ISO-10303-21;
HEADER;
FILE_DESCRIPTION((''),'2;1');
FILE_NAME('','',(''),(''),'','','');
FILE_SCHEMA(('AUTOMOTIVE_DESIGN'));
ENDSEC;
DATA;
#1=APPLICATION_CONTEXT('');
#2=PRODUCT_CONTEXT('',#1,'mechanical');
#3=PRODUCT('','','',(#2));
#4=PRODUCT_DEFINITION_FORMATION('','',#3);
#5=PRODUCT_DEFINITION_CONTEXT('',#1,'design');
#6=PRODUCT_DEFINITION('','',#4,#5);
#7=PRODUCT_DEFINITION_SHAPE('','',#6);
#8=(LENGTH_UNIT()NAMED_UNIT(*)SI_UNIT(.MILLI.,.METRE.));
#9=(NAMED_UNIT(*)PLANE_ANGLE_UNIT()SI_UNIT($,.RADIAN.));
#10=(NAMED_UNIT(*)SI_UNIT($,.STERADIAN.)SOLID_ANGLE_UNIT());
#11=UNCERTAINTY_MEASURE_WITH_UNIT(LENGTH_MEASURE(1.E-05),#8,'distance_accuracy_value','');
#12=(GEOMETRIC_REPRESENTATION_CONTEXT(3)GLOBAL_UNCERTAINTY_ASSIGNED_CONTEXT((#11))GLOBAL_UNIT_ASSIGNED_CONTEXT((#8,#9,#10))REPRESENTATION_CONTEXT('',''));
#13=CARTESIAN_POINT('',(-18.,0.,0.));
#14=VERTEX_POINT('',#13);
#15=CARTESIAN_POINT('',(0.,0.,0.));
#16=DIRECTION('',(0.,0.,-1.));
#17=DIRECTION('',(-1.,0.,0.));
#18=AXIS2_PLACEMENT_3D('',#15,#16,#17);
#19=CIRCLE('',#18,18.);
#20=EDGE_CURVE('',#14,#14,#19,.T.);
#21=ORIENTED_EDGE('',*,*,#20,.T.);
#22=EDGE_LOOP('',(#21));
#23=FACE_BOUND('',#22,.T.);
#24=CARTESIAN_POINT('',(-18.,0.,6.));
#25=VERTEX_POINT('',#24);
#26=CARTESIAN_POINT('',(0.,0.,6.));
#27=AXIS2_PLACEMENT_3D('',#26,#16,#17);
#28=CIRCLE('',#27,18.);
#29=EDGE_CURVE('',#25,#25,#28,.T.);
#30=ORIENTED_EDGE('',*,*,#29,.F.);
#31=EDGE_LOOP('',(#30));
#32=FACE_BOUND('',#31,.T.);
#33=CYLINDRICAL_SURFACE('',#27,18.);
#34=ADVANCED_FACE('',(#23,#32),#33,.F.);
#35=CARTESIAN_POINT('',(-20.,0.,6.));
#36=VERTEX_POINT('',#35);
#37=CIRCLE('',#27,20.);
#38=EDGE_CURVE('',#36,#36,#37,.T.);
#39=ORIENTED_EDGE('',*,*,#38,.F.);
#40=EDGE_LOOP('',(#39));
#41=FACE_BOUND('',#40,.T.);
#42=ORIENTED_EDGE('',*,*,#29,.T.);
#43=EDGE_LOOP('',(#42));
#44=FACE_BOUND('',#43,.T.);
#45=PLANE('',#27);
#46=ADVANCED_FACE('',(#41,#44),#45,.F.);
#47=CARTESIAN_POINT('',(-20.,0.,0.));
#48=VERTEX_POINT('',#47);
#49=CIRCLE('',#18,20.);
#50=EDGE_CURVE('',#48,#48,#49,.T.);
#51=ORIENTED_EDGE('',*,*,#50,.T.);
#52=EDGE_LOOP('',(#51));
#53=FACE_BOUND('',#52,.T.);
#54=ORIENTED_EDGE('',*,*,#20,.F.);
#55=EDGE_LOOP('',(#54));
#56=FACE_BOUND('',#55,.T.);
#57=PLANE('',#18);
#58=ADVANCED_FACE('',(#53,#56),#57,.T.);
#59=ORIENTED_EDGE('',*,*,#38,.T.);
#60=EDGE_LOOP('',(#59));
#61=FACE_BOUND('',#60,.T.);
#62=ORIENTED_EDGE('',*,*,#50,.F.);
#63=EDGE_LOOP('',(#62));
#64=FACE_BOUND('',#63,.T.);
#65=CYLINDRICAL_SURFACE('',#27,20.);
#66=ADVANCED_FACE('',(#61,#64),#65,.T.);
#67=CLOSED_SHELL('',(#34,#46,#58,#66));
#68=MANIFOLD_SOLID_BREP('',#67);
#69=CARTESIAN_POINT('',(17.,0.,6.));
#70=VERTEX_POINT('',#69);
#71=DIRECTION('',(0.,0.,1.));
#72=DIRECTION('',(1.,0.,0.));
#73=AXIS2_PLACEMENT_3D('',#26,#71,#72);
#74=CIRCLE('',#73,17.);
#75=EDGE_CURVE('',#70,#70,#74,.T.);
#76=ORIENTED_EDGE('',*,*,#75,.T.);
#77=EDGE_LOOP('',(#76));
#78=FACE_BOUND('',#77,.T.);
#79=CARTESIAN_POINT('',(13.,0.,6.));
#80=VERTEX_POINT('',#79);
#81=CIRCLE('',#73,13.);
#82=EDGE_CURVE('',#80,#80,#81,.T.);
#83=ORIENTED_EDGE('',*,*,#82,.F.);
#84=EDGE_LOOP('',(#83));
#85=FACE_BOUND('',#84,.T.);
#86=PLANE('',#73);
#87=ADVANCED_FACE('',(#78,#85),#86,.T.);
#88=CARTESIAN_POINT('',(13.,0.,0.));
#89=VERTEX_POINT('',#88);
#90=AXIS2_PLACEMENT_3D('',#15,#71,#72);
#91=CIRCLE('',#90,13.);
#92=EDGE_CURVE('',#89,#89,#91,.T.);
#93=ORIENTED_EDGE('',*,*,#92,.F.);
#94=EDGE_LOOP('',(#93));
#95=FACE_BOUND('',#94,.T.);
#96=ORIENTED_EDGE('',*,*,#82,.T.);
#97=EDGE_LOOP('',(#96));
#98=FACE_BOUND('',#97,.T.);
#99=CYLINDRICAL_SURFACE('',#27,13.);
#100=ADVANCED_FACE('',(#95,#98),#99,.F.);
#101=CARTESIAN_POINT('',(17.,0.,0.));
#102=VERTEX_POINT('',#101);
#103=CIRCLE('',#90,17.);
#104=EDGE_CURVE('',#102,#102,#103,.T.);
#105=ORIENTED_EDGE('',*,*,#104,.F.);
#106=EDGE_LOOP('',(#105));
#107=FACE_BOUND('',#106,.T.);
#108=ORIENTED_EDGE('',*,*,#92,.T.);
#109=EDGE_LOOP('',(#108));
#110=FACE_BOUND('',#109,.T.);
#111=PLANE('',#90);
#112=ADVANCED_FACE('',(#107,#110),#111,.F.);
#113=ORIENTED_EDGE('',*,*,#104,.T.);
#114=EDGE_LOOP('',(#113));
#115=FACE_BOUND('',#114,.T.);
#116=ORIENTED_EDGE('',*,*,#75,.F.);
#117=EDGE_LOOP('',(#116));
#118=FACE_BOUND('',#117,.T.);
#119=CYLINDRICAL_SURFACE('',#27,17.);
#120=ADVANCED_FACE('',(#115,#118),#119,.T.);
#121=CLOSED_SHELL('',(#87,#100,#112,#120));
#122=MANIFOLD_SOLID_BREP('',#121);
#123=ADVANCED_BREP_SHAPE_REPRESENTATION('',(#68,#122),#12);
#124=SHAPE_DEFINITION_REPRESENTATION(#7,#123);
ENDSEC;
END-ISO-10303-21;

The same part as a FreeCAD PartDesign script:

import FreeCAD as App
import Part
import Sketcher

V = App.Vector

doc = App.newDocument("Part")
body = doc.addObject("PartDesign::Body", "Body")

# Sketch on XY plane
sketch1 = body.newObject("Sketcher::SketchObject", "Sketch")
sketch1.AttachmentSupport = (doc.getObject("XY_Plane"), [""])
sketch1.MapMode = "FlatFace"
sketch1.addGeometry(Part.Circle(V(0, 0, 0), V(0, 0, 1), 17), False)
sketch1.addGeometry(Part.Circle(V(0, 0, 0), V(0, 0, 1), 13), False)
sketch1.addConstraint(Sketcher.Constraint("Coincident", 0, 3, -1, 1))
sketch1.addConstraint(Sketcher.Constraint("Coincident", 1, 3, -1, 1))
sketch1.addConstraint(Sketcher.Constraint("Diameter", 0, 34.0))
sketch1.addConstraint(Sketcher.Constraint("Diameter", 1, 26.0))
pad1 = body.newObject("PartDesign::Pad", "Pad")
pad1.Profile = sketch1
pad1.Length = 6
body2 = doc.addObject("PartDesign::Body", "Body001")

# Sketch on XY plane
sketch2 = body2.newObject("Sketcher::SketchObject", "Sketch001")
sketch2.AttachmentSupport = (doc.getObject("XY_Plane001"), [""])
sketch2.MapMode = "FlatFace"
sketch2.addGeometry(Part.Circle(V(0, 0, 0), V(0, 0, 1), 20), False)
sketch2.addGeometry(Part.Circle(V(0, 0, 0), V(0, 0, 1), 18), False)
sketch2.addConstraint(Sketcher.Constraint("Coincident", 0, 3, -1, 1))
sketch2.addConstraint(Sketcher.Constraint("Coincident", 1, 3, -1, 1))
sketch2.addConstraint(Sketcher.Constraint("Diameter", 0, 40.0))
sketch2.addConstraint(Sketcher.Constraint("Diameter", 1, 36.0))
pad2 = body2.newObject("PartDesign::Pad", "Pad001")
pad2.Profile = sketch2
pad2.Length = 6

doc.recompute()
